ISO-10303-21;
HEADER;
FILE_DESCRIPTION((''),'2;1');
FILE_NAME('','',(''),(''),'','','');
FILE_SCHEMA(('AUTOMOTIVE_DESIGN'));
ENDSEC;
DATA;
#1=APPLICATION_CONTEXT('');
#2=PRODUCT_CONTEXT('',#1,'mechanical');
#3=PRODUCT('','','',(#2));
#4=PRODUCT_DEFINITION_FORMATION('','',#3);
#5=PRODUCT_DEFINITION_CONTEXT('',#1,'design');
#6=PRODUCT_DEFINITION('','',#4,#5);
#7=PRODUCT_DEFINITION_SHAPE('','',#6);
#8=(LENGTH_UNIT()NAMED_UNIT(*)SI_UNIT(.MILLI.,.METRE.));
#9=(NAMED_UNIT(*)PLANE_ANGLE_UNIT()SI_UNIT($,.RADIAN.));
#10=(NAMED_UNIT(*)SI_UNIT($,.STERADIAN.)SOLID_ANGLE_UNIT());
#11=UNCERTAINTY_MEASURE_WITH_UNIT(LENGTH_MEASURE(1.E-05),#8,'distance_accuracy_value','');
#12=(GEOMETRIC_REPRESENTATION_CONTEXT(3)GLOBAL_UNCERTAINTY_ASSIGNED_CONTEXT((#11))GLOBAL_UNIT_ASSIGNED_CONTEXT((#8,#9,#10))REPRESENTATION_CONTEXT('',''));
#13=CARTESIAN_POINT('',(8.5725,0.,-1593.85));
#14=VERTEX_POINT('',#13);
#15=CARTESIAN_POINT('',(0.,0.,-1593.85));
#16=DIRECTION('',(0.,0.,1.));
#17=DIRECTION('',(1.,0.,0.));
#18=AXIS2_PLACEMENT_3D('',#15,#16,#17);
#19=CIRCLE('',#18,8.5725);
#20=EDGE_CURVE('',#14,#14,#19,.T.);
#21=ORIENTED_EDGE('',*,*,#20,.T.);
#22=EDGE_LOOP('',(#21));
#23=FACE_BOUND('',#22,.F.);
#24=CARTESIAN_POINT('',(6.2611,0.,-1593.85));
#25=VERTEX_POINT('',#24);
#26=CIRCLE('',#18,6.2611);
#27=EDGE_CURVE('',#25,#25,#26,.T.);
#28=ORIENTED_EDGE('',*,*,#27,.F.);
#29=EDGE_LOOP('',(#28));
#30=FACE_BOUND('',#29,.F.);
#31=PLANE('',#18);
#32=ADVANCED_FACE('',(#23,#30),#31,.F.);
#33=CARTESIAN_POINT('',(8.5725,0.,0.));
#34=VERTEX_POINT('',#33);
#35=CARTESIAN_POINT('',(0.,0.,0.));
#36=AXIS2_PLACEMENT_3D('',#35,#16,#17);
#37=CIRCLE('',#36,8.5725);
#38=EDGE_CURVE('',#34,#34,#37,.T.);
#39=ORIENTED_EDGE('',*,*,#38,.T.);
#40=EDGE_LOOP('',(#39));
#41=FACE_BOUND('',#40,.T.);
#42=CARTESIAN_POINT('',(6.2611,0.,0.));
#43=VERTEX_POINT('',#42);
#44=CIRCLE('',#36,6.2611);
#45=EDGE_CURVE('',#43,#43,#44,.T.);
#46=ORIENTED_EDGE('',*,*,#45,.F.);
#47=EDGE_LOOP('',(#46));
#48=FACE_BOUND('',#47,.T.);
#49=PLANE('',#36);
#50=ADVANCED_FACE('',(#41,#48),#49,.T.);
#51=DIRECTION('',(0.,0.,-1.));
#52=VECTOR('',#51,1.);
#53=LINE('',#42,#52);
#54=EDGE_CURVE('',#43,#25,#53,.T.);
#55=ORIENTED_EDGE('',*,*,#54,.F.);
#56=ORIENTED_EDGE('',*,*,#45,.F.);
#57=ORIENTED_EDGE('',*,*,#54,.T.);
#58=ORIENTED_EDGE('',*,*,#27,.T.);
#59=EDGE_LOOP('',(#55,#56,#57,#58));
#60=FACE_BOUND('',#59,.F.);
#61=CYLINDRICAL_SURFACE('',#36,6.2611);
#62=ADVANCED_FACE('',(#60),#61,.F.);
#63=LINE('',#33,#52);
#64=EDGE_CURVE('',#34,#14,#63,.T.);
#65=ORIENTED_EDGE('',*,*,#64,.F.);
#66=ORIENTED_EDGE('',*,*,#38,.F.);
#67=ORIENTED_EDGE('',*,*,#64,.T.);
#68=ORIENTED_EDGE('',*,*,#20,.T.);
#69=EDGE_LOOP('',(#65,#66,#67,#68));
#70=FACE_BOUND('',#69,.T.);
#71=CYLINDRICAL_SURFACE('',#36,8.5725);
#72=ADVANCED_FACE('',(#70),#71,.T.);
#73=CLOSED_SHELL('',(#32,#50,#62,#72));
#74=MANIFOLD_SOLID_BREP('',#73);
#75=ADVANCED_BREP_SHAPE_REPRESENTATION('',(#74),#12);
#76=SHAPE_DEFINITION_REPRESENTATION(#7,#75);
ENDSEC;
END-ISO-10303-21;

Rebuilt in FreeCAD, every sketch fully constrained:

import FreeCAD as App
import Part
import Sketcher

V = App.Vector
Q = App.Units.Quantity

doc = App.newDocument("Part")
body = doc.addObject("PartDesign::Body", "Body")

# Sketch on XY plane
sketch1 = body.newObject("Sketcher::SketchObject", "Sketch")
sketch1.AttachmentSupport = (doc.getObject("XY_Plane"), [""])
sketch1.MapMode = "FlatFace"
sketch1.addGeometry(Part.Circle(V(0, 0, 0), V(0, 0, 1), 9), False)
sketch1.addGeometry(Part.Circle(V(0, 0, 0), V(0, 0, 1), 6), False)
sketch1.addConstraint(Sketcher.Constraint("Coincident", 0, 3, -1, 1))
sketch1.addConstraint(Sketcher.Constraint("Coincident", 1, 3, -1, 1))
sketch1.addConstraint(Sketcher.Constraint("Diameter", 0, Q("0.675 in")))
sketch1.addConstraint(Sketcher.Constraint("Diameter", 1, Q("0.493 in")))
pad1 = body.newObject("PartDesign::Pad", "Pad")
pad1.Profile = sketch1
pad1.Length = Q("62.75 in")
pad1.Reversed = True

doc.recompute()
